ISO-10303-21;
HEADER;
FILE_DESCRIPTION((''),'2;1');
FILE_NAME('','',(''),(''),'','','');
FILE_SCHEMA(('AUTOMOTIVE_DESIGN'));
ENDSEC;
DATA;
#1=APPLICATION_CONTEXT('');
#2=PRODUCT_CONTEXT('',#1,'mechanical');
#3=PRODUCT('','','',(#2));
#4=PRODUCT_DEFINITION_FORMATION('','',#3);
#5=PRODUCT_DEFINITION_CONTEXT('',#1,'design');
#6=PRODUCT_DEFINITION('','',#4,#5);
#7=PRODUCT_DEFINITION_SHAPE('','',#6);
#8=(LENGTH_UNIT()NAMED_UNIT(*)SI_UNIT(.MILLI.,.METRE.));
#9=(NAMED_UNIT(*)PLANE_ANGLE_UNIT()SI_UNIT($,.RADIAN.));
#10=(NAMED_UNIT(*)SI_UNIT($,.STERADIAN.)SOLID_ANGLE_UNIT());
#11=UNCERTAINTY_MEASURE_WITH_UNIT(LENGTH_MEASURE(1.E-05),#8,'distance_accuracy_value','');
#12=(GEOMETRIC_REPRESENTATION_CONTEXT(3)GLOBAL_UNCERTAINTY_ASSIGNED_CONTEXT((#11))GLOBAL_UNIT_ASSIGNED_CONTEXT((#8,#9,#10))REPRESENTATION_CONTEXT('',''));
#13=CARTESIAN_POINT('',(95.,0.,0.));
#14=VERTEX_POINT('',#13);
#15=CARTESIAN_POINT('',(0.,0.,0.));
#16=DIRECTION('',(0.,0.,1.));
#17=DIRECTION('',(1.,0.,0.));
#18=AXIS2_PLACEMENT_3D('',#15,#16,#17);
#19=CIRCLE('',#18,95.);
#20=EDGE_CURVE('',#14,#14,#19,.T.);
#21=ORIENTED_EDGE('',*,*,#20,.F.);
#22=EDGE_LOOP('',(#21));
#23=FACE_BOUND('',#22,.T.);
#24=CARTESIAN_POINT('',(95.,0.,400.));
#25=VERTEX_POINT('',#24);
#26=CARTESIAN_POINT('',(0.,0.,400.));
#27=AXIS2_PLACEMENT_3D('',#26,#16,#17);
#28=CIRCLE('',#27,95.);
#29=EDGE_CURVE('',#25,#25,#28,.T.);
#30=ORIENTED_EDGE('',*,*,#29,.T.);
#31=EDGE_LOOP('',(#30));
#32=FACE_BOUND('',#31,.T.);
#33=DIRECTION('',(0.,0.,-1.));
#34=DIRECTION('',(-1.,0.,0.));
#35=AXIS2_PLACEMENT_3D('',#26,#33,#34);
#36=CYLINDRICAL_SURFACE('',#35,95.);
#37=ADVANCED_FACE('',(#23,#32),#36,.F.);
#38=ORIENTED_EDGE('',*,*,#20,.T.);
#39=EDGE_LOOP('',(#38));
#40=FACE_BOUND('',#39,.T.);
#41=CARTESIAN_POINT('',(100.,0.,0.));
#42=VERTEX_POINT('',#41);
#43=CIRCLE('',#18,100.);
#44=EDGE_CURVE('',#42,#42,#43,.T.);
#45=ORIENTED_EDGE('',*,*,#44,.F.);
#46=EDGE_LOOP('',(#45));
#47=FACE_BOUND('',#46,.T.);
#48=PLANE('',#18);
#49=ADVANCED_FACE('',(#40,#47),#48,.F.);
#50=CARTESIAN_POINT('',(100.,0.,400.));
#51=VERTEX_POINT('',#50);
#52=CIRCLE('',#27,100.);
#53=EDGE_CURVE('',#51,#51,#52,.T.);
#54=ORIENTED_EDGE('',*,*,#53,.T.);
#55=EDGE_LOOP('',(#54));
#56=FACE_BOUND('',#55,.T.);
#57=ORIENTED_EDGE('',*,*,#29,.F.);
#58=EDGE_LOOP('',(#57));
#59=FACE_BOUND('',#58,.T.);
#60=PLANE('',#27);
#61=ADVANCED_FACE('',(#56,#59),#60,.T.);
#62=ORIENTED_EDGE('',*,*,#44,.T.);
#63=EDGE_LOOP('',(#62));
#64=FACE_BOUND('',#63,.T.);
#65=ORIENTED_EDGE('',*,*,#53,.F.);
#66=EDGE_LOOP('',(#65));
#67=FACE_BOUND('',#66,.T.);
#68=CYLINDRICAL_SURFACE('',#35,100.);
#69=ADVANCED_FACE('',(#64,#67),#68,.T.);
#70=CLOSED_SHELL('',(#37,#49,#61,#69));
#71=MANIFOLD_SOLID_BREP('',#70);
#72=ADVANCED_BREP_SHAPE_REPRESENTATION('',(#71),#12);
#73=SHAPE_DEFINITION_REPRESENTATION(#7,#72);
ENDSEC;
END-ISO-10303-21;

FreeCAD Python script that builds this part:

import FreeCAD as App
import Part
import Sketcher

V = App.Vector
Q = App.Units.Quantity

doc = App.newDocument("Part")
body = doc.addObject("PartDesign::Body", "Body")

# Sketch on XY plane
sketch1 = body.newObject("Sketcher::SketchObject", "Sketch")
sketch1.AttachmentSupport = (doc.getObject("XY_Plane"), [""])
sketch1.MapMode = "FlatFace"
sketch1.addGeometry([
    Part.Circle(V(0, 0, 0), V(0, 0, 1), 100),
    Part.Circle(V(0, 0, 0), V(0, 0, 1), 95),
], False)
sketch1.addConstraint([
    Sketcher.Constraint("Coincident", 0, 3, -1, 1),
    Sketcher.Constraint("Coincident", 1, 3, -1, 1),
    Sketcher.Constraint("Diameter", 0, Q("200 mm")),
    Sketcher.Constraint("Diameter", 1, Q("190 mm")),
])
pad1 = body.newObject("PartDesign::Pad", "Pad")
pad1.Profile = sketch1
pad1.Length = 400

doc.recompute()
